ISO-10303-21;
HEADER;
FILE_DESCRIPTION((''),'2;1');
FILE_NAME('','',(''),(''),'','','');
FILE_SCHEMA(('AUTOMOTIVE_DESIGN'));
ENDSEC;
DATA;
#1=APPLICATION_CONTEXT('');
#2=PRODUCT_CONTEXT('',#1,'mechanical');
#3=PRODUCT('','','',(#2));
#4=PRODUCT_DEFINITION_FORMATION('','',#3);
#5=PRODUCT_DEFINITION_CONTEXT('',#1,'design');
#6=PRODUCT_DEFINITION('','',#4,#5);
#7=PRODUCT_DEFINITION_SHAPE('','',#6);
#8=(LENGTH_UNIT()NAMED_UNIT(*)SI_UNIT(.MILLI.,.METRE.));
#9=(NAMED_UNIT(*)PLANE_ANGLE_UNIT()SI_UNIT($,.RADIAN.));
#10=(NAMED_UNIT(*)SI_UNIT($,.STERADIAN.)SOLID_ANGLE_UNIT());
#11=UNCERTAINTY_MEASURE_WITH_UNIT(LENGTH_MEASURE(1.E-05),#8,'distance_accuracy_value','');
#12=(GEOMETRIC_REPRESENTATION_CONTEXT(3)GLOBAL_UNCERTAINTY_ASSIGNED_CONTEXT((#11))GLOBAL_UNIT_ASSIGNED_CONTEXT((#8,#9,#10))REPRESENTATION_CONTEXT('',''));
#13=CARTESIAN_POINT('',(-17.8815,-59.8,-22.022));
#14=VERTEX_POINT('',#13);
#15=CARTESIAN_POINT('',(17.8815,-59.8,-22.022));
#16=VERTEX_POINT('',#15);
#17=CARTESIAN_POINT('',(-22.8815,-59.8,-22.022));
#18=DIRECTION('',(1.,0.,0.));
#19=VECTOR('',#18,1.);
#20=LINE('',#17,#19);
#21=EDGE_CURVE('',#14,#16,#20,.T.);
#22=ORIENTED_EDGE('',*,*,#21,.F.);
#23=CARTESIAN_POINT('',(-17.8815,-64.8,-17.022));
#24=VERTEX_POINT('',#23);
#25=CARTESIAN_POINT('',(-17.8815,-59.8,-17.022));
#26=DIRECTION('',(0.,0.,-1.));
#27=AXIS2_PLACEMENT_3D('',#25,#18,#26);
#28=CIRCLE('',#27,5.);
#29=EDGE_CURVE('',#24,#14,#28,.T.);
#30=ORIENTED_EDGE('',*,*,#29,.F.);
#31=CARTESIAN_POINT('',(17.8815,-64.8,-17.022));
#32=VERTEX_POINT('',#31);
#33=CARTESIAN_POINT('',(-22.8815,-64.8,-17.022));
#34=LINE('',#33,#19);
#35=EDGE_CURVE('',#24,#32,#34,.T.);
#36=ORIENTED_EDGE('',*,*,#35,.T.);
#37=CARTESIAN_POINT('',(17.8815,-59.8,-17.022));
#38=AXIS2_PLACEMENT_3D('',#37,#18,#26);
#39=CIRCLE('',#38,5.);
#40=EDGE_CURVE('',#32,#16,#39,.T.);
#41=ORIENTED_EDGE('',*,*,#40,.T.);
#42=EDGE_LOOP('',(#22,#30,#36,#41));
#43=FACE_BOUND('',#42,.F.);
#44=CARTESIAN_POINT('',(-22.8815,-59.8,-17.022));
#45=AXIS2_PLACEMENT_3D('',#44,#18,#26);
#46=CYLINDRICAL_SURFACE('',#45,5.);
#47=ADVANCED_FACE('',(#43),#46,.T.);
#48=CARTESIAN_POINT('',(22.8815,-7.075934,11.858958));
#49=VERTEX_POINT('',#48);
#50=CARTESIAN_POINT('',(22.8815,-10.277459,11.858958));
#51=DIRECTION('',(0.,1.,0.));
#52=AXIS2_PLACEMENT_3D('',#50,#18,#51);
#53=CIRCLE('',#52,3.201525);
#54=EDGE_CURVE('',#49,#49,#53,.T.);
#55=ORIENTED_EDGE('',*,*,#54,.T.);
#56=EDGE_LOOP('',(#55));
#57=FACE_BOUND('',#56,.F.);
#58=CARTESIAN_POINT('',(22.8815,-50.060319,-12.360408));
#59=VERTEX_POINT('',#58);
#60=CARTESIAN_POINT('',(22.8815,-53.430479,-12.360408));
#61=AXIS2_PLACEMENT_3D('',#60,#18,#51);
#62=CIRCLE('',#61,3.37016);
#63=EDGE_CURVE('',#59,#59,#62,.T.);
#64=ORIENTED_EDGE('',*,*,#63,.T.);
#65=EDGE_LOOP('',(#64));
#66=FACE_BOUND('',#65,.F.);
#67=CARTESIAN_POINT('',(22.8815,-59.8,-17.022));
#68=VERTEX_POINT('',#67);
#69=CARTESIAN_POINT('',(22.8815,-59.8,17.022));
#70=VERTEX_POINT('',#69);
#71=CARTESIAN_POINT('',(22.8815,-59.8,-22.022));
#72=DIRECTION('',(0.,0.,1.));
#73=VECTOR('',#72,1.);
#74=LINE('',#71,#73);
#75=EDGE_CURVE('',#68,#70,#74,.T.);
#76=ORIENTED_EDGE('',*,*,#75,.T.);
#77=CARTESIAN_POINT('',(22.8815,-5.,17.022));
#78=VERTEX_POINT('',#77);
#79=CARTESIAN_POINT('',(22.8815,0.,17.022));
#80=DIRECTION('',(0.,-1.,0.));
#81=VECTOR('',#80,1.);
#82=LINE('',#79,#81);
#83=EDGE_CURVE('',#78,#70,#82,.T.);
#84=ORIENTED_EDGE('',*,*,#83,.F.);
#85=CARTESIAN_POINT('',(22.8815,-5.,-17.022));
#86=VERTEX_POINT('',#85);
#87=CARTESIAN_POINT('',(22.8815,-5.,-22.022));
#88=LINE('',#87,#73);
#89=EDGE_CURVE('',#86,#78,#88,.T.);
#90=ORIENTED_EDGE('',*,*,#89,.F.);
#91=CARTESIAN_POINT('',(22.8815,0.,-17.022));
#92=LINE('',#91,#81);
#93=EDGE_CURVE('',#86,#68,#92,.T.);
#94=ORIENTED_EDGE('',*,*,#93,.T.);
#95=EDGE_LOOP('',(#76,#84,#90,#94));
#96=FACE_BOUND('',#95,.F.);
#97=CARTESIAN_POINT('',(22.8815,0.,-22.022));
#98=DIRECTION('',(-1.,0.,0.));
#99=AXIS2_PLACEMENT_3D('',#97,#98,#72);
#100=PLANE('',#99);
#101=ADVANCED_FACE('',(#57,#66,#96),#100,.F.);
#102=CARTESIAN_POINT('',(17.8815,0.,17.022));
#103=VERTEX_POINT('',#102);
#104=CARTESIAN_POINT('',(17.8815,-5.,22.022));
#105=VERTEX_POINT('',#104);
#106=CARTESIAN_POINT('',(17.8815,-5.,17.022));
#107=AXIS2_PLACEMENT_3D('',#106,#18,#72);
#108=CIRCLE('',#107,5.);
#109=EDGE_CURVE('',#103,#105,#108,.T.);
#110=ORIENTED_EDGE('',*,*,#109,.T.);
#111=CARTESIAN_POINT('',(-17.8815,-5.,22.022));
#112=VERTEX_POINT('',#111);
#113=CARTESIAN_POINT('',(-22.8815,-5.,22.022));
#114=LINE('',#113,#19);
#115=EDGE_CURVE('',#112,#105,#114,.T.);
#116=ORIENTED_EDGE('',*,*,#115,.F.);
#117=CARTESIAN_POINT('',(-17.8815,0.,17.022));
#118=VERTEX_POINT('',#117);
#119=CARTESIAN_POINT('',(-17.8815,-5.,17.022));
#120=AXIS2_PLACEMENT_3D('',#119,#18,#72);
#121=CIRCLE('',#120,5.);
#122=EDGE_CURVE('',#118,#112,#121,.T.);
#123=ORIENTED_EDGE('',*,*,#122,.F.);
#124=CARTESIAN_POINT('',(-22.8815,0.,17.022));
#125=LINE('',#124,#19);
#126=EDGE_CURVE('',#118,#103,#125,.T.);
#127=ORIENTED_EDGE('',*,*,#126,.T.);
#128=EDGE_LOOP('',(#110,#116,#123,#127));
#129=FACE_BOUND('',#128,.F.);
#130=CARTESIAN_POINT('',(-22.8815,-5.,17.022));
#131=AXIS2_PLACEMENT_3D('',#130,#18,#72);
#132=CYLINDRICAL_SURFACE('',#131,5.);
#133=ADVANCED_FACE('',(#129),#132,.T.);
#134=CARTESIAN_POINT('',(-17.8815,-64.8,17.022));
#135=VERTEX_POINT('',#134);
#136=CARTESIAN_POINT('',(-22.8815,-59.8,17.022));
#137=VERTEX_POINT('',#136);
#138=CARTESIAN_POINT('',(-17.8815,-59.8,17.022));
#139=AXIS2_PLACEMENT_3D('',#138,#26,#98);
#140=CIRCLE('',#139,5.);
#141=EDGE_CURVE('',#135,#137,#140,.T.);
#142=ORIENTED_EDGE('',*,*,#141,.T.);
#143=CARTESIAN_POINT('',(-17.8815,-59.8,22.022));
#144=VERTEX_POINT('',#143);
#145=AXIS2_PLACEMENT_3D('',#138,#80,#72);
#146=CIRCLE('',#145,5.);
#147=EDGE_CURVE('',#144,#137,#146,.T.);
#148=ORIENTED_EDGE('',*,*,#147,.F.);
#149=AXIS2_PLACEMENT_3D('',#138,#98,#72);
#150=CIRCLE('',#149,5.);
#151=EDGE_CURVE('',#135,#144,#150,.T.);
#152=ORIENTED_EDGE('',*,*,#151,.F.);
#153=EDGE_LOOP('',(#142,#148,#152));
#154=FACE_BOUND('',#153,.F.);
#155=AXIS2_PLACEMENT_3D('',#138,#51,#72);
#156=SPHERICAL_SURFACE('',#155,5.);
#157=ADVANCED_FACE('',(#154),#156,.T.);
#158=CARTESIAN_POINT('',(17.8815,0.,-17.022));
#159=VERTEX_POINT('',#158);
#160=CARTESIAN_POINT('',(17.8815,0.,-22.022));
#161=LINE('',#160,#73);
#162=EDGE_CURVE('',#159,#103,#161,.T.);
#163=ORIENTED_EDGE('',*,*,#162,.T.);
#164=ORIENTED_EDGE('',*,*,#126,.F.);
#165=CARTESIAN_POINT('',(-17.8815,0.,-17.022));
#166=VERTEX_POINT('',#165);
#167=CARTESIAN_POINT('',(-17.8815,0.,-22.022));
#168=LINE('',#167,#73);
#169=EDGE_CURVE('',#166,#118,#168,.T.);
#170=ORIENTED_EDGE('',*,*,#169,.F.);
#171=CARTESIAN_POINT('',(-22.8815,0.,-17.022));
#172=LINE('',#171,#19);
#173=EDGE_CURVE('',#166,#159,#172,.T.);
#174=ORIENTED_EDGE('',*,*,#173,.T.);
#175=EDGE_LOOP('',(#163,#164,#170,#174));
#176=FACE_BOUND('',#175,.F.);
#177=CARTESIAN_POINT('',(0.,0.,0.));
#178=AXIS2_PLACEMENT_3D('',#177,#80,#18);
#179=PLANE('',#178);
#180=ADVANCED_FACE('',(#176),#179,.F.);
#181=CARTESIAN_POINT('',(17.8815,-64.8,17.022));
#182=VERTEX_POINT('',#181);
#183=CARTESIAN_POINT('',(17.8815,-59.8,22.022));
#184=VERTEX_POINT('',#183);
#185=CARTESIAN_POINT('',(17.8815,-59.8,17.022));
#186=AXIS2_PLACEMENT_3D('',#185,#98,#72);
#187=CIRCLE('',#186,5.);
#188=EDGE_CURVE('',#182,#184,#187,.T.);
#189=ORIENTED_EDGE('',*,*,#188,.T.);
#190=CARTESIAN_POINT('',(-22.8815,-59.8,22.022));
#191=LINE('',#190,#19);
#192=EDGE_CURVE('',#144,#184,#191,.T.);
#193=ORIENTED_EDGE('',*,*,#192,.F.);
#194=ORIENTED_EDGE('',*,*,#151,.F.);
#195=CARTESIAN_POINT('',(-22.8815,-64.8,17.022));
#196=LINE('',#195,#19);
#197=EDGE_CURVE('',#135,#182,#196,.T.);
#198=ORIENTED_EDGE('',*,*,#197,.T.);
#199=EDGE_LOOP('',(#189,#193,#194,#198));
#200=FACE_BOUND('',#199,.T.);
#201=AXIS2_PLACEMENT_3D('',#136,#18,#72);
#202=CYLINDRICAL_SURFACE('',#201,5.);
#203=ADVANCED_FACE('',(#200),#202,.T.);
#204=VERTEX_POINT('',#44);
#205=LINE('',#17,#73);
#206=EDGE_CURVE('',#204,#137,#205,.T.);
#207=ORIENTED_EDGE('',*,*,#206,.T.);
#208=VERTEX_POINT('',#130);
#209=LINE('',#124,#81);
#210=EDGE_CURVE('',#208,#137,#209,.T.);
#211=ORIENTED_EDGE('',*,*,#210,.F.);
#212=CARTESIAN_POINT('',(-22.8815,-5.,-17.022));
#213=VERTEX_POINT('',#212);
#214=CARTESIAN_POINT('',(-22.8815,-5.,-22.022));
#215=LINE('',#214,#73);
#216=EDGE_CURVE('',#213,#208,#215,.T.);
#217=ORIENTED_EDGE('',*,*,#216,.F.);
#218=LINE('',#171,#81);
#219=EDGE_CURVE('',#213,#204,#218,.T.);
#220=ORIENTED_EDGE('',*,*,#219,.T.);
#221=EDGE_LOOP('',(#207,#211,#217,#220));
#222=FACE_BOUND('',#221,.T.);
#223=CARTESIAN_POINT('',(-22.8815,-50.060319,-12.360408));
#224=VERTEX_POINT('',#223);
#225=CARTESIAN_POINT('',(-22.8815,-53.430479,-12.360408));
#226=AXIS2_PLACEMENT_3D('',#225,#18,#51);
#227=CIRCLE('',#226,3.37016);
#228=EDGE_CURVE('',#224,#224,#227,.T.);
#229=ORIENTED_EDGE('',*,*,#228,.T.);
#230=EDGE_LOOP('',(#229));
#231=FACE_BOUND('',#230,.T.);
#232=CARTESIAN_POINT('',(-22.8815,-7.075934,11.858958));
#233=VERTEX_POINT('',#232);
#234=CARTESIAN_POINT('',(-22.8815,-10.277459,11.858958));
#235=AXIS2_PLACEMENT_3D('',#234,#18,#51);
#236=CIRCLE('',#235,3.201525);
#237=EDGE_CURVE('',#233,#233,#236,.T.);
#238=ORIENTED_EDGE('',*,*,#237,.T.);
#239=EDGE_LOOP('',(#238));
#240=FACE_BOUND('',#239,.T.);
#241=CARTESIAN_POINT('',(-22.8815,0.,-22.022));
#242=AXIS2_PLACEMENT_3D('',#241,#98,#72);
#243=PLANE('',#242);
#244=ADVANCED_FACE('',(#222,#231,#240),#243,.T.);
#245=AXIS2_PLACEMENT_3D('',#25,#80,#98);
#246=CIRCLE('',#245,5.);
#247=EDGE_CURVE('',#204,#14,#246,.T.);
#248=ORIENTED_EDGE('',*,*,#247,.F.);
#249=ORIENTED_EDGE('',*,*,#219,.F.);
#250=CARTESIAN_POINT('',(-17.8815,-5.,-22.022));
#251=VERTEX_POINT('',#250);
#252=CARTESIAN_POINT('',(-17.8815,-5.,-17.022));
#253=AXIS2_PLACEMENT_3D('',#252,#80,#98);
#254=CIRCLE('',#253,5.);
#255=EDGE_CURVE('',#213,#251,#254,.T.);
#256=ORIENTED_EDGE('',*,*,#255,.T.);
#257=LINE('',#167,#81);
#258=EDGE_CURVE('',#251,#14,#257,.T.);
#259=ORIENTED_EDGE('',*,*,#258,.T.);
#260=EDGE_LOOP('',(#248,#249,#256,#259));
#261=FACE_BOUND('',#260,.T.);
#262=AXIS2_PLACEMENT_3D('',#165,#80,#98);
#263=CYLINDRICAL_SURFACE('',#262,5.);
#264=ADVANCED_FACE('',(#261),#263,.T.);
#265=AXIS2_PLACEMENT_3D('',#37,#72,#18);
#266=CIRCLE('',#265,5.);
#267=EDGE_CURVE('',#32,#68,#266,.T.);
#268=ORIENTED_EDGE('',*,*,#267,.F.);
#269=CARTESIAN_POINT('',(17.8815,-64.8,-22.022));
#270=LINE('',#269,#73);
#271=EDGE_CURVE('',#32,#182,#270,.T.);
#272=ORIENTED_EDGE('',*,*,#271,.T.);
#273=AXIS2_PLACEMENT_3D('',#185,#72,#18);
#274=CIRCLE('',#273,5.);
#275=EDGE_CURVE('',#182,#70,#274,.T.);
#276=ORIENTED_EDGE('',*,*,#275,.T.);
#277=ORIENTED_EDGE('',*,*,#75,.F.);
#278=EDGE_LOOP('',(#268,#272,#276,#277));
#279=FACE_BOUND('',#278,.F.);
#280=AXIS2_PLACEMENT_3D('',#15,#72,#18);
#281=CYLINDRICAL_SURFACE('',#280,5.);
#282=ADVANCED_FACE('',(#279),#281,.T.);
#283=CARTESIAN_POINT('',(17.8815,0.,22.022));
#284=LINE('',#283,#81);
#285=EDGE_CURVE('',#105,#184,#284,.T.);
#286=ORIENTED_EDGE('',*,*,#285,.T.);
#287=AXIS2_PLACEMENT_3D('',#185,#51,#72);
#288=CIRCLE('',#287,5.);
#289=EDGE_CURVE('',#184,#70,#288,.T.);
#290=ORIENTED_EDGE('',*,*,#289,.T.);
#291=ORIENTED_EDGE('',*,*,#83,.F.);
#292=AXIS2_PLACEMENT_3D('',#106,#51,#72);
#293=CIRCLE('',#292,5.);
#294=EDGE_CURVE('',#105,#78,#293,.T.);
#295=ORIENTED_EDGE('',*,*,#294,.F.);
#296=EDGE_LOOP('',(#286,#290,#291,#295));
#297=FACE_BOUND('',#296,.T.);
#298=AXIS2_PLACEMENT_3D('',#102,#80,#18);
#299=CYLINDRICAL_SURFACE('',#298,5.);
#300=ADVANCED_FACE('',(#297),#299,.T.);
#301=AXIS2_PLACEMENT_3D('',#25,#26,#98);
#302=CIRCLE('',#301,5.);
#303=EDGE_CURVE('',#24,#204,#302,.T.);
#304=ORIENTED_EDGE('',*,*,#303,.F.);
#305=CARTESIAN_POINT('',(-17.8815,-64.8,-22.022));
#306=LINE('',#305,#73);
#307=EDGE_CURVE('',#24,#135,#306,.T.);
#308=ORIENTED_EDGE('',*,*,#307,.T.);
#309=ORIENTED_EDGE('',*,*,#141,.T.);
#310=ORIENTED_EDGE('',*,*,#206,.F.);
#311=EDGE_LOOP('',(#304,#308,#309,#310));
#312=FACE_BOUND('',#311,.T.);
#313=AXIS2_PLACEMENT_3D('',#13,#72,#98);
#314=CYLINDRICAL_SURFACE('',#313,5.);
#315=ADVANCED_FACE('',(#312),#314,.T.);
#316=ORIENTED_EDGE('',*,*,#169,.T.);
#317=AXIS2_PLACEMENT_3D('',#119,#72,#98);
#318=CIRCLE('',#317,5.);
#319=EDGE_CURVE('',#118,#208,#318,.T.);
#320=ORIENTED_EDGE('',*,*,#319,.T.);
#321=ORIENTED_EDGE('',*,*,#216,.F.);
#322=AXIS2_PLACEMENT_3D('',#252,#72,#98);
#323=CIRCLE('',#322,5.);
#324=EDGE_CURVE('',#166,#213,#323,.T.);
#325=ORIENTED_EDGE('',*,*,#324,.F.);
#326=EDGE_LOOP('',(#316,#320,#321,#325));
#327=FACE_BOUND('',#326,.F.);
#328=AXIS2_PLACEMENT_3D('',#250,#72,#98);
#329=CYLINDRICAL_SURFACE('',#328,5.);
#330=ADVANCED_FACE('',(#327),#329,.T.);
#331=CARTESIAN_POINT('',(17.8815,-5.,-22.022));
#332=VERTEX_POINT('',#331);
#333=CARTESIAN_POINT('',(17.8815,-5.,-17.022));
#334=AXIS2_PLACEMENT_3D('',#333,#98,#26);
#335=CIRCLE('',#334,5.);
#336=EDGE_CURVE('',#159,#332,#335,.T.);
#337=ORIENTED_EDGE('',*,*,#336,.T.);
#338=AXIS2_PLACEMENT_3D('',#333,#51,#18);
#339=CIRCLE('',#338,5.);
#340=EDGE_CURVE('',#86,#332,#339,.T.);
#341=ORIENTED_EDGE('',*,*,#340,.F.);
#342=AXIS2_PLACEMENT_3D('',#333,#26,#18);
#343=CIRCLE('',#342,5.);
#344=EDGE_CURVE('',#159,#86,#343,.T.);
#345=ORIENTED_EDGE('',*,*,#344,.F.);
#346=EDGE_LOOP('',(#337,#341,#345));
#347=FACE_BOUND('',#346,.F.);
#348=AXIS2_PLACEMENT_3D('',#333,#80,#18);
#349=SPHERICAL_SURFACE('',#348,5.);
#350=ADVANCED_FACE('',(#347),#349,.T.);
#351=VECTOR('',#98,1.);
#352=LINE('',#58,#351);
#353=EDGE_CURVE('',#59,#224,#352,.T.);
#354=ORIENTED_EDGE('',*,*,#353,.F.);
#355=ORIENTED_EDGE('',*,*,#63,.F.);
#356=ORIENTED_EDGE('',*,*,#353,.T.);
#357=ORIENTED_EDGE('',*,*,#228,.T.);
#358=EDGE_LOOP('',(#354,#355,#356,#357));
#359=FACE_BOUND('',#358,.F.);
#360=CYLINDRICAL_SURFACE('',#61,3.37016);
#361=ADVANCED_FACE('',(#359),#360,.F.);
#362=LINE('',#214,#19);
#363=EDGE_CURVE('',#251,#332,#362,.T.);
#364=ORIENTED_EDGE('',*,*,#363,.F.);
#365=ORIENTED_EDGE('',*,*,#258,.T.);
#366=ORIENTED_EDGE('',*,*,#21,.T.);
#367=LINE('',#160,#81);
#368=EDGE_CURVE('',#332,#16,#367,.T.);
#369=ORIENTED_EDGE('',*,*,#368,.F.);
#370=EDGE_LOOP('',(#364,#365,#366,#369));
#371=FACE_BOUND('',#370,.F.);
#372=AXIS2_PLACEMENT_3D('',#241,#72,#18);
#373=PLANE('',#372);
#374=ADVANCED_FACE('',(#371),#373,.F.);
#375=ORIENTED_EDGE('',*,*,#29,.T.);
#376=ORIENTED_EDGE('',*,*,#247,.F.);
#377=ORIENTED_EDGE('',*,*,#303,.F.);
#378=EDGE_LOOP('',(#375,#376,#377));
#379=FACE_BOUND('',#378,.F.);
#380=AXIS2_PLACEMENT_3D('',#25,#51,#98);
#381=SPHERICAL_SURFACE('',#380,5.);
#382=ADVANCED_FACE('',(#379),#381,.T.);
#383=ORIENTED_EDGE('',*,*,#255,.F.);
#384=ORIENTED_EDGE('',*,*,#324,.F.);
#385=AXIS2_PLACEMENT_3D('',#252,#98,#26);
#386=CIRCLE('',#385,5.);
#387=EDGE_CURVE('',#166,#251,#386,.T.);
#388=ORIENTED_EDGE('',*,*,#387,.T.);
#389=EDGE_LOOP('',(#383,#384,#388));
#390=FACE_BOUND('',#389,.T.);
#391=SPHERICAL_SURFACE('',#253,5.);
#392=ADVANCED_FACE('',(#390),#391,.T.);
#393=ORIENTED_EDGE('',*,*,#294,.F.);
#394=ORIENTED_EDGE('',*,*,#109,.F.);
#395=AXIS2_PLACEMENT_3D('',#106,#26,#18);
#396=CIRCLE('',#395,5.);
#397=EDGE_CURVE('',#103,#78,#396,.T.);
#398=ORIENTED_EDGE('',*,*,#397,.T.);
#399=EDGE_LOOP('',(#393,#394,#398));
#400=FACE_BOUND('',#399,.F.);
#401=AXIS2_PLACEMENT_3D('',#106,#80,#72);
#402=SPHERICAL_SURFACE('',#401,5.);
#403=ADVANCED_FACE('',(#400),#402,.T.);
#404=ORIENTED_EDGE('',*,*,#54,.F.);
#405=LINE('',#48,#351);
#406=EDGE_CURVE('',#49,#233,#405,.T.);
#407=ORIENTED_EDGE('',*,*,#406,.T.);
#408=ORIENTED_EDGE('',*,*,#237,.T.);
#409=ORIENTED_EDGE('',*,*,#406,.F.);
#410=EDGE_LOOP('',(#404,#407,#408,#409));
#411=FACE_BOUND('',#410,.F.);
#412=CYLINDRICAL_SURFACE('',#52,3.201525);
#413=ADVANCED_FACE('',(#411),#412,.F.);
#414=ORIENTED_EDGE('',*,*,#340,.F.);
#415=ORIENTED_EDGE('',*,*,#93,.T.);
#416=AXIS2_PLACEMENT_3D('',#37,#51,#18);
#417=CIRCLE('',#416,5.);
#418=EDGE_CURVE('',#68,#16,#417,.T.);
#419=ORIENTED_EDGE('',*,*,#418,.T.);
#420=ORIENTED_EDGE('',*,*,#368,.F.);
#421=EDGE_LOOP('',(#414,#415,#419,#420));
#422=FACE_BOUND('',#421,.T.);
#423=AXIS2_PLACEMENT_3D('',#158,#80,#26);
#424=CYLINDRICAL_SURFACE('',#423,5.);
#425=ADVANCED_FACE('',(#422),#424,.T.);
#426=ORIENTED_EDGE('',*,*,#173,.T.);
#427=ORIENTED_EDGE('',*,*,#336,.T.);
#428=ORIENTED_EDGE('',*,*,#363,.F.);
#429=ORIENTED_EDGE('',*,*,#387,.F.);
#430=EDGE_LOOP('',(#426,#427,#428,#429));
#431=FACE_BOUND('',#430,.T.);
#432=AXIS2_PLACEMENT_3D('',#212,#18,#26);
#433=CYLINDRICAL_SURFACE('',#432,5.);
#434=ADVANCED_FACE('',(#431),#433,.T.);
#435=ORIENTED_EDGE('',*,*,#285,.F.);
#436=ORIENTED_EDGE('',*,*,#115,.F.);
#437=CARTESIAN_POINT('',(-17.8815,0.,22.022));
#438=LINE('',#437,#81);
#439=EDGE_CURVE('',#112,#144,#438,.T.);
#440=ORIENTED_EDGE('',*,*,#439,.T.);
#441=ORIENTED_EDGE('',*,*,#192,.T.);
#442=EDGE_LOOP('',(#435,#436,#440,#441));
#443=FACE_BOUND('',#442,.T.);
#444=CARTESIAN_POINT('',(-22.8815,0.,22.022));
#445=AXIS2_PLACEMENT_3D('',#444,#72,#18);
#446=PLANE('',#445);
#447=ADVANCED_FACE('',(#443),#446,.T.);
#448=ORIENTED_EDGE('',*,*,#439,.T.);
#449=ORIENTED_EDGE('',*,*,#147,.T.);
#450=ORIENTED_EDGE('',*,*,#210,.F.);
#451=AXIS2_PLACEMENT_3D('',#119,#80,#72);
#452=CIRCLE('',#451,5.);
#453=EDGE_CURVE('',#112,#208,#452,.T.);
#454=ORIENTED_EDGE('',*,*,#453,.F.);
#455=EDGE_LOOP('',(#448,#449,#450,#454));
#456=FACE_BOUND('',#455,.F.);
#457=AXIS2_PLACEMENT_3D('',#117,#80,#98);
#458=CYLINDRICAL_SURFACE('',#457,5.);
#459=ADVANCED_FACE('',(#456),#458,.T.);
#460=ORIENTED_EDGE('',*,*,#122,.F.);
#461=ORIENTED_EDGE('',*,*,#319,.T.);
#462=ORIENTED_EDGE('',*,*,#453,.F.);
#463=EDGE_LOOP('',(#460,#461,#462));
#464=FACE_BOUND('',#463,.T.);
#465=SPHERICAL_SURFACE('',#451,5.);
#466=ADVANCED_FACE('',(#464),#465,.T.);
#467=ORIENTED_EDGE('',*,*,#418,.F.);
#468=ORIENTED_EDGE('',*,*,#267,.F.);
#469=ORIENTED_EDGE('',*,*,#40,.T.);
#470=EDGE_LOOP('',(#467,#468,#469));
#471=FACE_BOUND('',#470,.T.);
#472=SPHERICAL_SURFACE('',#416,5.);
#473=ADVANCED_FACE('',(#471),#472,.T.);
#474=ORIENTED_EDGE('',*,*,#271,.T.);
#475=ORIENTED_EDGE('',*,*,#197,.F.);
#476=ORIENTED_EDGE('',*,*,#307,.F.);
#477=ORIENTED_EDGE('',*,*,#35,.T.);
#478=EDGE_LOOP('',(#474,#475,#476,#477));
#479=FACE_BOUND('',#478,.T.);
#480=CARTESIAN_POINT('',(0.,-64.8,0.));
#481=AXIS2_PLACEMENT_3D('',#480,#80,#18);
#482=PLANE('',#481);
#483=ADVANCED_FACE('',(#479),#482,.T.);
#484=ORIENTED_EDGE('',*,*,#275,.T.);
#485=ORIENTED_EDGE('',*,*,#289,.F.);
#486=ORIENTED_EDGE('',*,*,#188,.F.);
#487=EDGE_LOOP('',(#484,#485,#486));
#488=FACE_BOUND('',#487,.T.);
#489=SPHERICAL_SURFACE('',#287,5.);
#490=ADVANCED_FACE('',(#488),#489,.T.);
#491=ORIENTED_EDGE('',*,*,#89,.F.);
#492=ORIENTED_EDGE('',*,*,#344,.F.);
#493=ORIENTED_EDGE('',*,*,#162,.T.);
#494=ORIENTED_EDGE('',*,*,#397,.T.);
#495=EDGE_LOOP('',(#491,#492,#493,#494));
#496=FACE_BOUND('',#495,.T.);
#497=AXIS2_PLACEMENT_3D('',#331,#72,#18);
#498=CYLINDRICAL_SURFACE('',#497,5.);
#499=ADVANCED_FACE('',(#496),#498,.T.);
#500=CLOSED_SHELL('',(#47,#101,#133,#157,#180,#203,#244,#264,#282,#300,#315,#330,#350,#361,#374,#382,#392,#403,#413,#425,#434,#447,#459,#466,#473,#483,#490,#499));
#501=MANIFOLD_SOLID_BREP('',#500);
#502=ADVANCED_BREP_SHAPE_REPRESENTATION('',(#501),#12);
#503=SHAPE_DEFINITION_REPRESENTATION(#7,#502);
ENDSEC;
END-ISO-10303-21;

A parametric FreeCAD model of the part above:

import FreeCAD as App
import Part
import Sketcher
from FreeCAD import Vector
Q = App.Units.Quantity

doc = App.newDocument("Part")
body = doc.addObject("PartDesign::Body", "Body")

# Sketch on XZ plane
sketch1 = body.newObject("Sketcher::SketchObject", "Sketch")
sketch1.AttachmentSupport = (doc.getObject("XZ_Plane"), [""])
sketch1.MapMode = "FlatFace"
sketch1.addGeometry(Part.LineSegment(Vector(-23, 22, 0), Vector(-23, -22, 0)), False)
sketch1.addGeometry(Part.LineSegment(Vector(-23, -22, 0), Vector(23, -22, 0)), False)
sketch1.addGeometry(Part.LineSegment(Vector(23, -22, 0), Vector(23, 22, 0)), False)
sketch1.addGeometry(Part.LineSegment(Vector(23, 22, 0), Vector(-23, 22, 0)), False)
sketch1.addConstraint(Sketcher.Constraint("Coincident", 0, 2, 1, 1))
sketch1.addConstraint(Sketcher.Constraint("Coincident", 1, 2, 2, 1))
sketch1.addConstraint(Sketcher.Constraint("Coincident", 2, 2, 3, 1))
sketch1.addConstraint(Sketcher.Constraint("Coincident", 3, 2, 0, 1))
sketch1.addConstraint(Sketcher.Constraint("Vertical", 0))
sketch1.addConstraint(Sketcher.Constraint("Horizontal", 1))
sketch1.addConstraint(Sketcher.Constraint("Vertical", 2))
sketch1.addConstraint(Sketcher.Constraint("Horizontal", 3))
sketch1.addConstraint(Sketcher.Constraint("Symmetric", 0, 2, 2, 2, -1, 1))
sketch1.addConstraint(Sketcher.Constraint("DistanceX", 1, 1, 1, 2, Q("45.763 mm")))
sketch1.addConstraint(Sketcher.Constraint("DistanceY", 0, 2, 0, 1, Q("44.044 mm")))
pad1 = body.newObject("PartDesign::Pad", "Pad")
pad1.Profile = sketch1
pad1.Length = 64.8
doc.recompute()

fillet = body.newObject("PartDesign::Fillet", "Fillet")
fillet.Base = (pad1, ["Edge1"])
fillet.UseAllEdges = True
fillet.Radius = 5

# Sketch on YZ plane
sketch2 = body.newObject("Sketcher::SketchObject", "Sketch001")
sketch2.AttachmentSupport = (doc.getObject("YZ_Plane"), [""])
sketch2.MapMode = "FlatFace"
sketch2.AttachmentOffset = App.Placement(Vector(0, 0, 22.8815), App.Rotation())
sketch2.addGeometry(Part.Circle(Vector(-10.3, 11.9, 0), Vector(0, 0, 1), 3.2), False)
sketch2.addGeometry(Part.Circle(Vector(-53.4, -12.4, 0), Vector(0, 0, 1), 3.4), False)
sketch2.addConstraint(Sketcher.Constraint("Diameter", 0, Q("6.40305 mm")))
sketch2.addConstraint(Sketcher.Constraint("Diameter", 1, Q("6.74032 mm")))
sketch2.addConstraint(Sketcher.Constraint("DistanceX", 0, 3, -1, 1, Q("10.277459 mm")))
sketch2.addConstraint(Sketcher.Constraint("DistanceX", 1, 3, -1, 1, Q("53.430479 mm")))
sketch2.addConstraint(Sketcher.Constraint("DistanceY", -1, 1, 0, 3, Q("11.858958 mm")))
sketch2.addConstraint(Sketcher.Constraint("DistanceY", 1, 3, -1, 1, Q("12.360408 mm")))
pocket1 = body.newObject("PartDesign::Pocket", "Pocket")
pocket1.Profile = sketch2
pocket1.Length = 124.6

doc.recompute()
